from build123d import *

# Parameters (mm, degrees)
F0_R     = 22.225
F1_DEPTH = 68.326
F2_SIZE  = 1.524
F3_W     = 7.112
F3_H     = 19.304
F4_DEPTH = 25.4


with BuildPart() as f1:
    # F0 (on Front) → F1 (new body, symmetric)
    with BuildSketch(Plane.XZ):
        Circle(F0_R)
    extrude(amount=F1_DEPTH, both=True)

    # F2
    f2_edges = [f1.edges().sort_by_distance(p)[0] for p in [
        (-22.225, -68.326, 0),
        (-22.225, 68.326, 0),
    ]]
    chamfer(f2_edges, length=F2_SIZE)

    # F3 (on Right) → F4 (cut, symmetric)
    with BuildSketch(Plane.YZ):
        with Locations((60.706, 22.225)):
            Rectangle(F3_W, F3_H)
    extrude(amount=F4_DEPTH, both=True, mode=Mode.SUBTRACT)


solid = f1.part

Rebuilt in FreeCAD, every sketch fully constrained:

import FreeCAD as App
import Part
import Sketcher

V = App.Vector
Q = App.Units.Quantity


def edges_at(feature, points):
    """Names of the edges that pass closest to the given points."""
    edges = feature.Shape.Edges
    near = lambda p: min(range(len(edges)), key=lambda i: edges[i].distToShape(Part.Vertex(*p))[0])
    return sorted({f"Edge{near(p) + 1}" for p in points})

doc = App.newDocument("Part")
body = doc.addObject("PartDesign::Body", "Body")

sketch1 = body.newObject("Sketcher::SketchObject", "Sketch")
sketch1.AttachmentSupport = (doc.getObject("XZ_Plane"), [""])
sketch1.MapMode = "FlatFace"
sketch1.addGeometry(Part.Circle(V(0, 0, 0), V(0, 0, 1), 22.225), False)
sketch1.addConstraint([
    Sketcher.Constraint("Coincident", 0, 3, -1, 1),
    Sketcher.Constraint("Diameter", 0, Q("1.75 in")),
])
pad1 = body.newObject("PartDesign::Pad", "Pad")
pad1.Profile = sketch1
pad1.Length = Q("5.38 in")
pad1.Midplane = True
doc.recompute()

chamfer = body.newObject("PartDesign::Chamfer", "Chamfer")
chamfer.Base = (pad1, edges_at(pad1, [(-22.225, -68.326, 0), (-22.225, 68.326, 0)]))
chamfer.Size = Q("0.06 in")

sketch2 = body.newObject("Sketcher::SketchObject", "Sketch001")
sketch2.AttachmentSupport = (doc.getObject("YZ_Plane"), [""])
sketch2.MapMode = "FlatFace"
sketch2.addGeometry([
    Part.LineSegment(V(57.15, 31.877, 0), V(57.15, 12.573, 0)),
    Part.LineSegment(V(57.15, 12.573, 0), V(64.262, 12.573, 0)),
    Part.LineSegment(V(64.262, 12.573, 0), V(64.262, 31.877, 0)),
    Part.LineSegment(V(64.262, 31.877, 0), V(57.15, 31.877, 0)),
], False)
sketch2.addConstraint([
    Sketcher.Constraint("Coincident", 0, 2, 1, 1),
    Sketcher.Constraint("Coincident", 1, 2, 2, 1),
    Sketcher.Constraint("Coincident", 2, 2, 3, 1),
    Sketcher.Constraint("Coincident", 3, 2, 0, 1),
    Sketcher.Constraint("Vertical", 0),
    Sketcher.Constraint("Horizontal", 1),
    Sketcher.Constraint("Vertical", 2),
    Sketcher.Constraint("Horizontal", 3),
    Sketcher.Constraint("DistanceX", 1, 1, 1, 2, Q("0.28 in")),
    Sketcher.Constraint("DistanceY", 0, 2, 0, 1, Q("0.76 in")),
    Sketcher.Constraint("DistanceX", -1, 1, 0, 2, Q("2.25 in")),
    Sketcher.Constraint("DistanceY", -1, 1, 0, 2, Q("0.495 in")),
])
pocket1 = body.newObject("PartDesign::Pocket", "Pocket")
pocket1.Profile = sketch2
pocket1.Length = Q("2 in")
pocket1.Midplane = True

doc.recompute()
